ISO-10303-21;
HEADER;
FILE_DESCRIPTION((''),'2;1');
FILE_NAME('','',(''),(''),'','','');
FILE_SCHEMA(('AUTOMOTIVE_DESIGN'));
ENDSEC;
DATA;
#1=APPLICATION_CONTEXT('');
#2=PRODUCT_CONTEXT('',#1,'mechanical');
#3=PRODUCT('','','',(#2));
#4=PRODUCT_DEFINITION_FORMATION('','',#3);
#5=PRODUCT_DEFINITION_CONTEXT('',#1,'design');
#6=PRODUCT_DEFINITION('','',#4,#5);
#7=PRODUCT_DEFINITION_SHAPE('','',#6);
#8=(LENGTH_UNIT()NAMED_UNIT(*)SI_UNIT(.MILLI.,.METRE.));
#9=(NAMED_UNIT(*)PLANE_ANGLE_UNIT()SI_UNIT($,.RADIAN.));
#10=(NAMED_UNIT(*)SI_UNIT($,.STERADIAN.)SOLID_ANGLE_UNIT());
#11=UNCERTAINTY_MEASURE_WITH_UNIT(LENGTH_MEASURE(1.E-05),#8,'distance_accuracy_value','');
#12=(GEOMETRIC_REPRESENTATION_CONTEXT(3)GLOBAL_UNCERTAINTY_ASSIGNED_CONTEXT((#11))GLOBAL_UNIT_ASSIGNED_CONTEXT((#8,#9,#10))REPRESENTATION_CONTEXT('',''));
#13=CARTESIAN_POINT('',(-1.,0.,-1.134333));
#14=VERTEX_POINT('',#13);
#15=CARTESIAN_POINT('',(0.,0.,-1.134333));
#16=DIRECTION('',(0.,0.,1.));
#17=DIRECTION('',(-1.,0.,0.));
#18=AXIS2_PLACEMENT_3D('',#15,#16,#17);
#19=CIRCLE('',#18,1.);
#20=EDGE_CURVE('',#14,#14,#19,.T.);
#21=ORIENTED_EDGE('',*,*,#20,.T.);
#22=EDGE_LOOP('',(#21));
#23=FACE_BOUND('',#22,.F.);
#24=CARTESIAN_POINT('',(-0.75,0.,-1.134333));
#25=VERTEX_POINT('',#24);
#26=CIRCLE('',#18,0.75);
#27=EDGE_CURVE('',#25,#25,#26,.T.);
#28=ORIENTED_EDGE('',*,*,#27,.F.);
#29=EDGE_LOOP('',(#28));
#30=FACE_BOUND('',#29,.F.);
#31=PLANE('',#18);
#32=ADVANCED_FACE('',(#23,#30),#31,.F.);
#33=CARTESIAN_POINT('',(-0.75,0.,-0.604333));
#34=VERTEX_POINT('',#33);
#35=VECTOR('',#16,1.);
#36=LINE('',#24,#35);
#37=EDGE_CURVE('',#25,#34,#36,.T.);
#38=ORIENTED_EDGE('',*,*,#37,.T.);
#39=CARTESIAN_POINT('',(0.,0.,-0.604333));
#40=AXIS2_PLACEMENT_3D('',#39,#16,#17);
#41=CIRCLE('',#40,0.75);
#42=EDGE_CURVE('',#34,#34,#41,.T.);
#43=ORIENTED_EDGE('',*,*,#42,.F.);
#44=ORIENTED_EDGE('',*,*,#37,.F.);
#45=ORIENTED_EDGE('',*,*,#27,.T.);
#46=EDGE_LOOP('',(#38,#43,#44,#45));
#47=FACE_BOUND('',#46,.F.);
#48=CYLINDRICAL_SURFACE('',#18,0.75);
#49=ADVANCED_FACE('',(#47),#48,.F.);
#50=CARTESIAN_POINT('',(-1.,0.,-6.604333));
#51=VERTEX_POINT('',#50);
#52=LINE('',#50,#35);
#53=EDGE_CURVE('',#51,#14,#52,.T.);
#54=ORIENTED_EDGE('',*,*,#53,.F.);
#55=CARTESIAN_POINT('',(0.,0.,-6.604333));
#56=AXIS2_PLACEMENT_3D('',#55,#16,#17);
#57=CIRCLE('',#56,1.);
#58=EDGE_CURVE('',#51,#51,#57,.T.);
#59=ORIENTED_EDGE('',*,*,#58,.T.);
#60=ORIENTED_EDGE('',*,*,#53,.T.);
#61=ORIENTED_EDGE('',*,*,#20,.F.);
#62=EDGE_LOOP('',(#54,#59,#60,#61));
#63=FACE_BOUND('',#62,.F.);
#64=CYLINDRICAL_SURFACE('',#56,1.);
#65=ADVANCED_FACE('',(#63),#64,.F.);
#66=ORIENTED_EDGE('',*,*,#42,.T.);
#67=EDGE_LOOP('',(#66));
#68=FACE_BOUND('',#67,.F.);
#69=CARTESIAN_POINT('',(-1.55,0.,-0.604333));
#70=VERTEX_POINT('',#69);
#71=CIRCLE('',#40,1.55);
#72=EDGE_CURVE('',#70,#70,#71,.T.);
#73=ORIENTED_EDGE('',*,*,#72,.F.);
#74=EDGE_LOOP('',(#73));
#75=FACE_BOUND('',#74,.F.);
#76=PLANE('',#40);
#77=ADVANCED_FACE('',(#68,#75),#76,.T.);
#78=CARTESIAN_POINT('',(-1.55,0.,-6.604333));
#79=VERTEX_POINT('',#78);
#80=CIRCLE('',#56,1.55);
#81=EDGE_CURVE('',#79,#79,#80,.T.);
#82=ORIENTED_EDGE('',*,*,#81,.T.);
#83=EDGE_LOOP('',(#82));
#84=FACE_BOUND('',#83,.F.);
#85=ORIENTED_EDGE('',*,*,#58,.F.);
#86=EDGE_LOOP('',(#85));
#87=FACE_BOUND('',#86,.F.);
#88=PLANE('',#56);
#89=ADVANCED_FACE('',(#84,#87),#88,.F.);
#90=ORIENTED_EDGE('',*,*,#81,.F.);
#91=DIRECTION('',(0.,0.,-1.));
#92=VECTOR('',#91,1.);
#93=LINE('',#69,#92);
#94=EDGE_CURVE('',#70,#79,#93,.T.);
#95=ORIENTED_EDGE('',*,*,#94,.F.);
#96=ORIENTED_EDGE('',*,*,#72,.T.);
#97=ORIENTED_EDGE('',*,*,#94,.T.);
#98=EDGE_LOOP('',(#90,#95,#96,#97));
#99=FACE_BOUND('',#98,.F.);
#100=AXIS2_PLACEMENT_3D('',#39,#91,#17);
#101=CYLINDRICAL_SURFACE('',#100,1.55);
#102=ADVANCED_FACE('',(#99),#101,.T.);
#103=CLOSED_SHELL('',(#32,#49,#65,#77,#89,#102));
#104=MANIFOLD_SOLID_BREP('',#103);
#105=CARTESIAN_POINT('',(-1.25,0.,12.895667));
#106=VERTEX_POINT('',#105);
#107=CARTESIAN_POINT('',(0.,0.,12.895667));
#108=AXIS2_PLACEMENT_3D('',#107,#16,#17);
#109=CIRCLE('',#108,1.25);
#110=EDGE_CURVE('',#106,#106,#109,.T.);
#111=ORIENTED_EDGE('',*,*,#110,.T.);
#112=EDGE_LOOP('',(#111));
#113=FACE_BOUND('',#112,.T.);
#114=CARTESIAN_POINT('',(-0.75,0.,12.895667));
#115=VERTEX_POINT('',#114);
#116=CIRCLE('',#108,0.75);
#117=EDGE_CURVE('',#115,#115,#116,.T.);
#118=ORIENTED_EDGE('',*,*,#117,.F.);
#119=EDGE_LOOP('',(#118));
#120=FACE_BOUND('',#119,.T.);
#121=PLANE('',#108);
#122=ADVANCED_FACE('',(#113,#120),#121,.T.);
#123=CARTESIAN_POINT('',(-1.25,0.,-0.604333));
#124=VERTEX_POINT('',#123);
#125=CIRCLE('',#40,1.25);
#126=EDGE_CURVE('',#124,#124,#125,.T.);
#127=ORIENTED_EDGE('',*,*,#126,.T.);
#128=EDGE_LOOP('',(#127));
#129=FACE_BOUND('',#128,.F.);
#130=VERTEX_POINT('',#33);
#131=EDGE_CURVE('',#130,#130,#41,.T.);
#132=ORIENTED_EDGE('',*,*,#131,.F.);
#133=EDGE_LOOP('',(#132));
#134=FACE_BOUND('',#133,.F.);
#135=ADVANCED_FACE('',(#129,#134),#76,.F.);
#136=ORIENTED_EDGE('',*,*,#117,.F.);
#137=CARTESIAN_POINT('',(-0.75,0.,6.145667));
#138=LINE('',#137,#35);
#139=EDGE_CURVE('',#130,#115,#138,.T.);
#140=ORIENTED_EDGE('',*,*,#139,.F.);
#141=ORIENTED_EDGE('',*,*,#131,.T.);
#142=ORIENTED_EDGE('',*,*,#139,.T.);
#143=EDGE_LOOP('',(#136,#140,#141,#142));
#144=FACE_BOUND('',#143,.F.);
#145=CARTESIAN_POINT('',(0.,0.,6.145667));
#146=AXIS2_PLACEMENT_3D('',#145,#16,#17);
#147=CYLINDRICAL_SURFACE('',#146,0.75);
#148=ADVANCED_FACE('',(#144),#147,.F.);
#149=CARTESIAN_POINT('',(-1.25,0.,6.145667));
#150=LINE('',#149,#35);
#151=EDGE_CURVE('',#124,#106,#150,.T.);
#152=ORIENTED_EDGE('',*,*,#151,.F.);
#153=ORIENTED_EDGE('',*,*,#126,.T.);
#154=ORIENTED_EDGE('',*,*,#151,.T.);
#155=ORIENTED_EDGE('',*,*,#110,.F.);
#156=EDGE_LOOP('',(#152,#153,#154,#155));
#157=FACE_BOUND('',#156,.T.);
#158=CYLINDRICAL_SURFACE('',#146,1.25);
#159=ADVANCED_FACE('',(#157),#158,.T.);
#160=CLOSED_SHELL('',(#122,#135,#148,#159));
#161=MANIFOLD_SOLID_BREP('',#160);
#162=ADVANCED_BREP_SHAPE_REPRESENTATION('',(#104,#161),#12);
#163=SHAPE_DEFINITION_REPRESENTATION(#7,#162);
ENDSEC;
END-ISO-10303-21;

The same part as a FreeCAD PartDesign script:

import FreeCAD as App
import Part
import Sketcher

doc = App.newDocument("Part")
body = doc.addObject("PartDesign::Body", "Body")

sketch1 = body.newObject("Sketcher::SketchObject", "Sketch")
sketch1.AttachmentSupport = (doc.getObject("XZ_Plane"), [""])
sketch1.MapMode = "FlatFace"
sketch1.addGeometry([
    Part.LineSegment(App.Vector(-1.55, -6.6, 0), App.Vector(-1, -6.6, 0)),
    Part.LineSegment(App.Vector(-1, -6.6, 0), App.Vector(-1, -1.13, 0)),
    Part.LineSegment(App.Vector(-1, -1.13, 0), App.Vector(-0.75, -1.13, 0)),
    Part.LineSegment(App.Vector(-0.75, -1.13, 0), App.Vector(-0.75, -0.6, 0)),
    Part.LineSegment(App.Vector(-0.75, -0.6, 0), App.Vector(-1.55, -0.6, 0)),
    Part.LineSegment(App.Vector(-1.55, -0.6, 0), App.Vector(-1.55, -6.6, 0)),
], False)
sketch1.addConstraint([
    Sketcher.Constraint("Coincident", 0, 2, 1, 1),
    Sketcher.Constraint("Coincident", 1, 2, 2, 1),
    Sketcher.Constraint("Coincident", 2, 2, 3, 1),
    Sketcher.Constraint("Coincident", 3, 2, 4, 1),
    Sketcher.Constraint("Coincident", 4, 2, 5, 1),
    Sketcher.Constraint("Coincident", 5, 2, 0, 1),
    Sketcher.Constraint("Horizontal", 0),
    Sketcher.Constraint("Vertical", 1),
    Sketcher.Constraint("Horizontal", 2),
    Sketcher.Constraint("Vertical", 3),
    Sketcher.Constraint("Horizontal", 4),
    Sketcher.Constraint("Vertical", 5),
    Sketcher.Constraint("DistanceY", 5, 2, 5, 1, 6.0),
    Sketcher.Constraint("DistanceX", 4, 2, 4, 1, 0.8),
    Sketcher.Constraint("DistanceX", 0, 2, -1, 1, 1.0),
    Sketcher.Constraint("DistanceX", 0, 1, 0, 2, 0.55),
    Sketcher.Constraint("DistanceY", 1, 1, 1, 2, 5.47),
    Sketcher.Constraint("DistanceY", 0, 2, -1, 1, 6.604333),
])
revolution = body.newObject("PartDesign::Revolution", "Revolution")
revolution.Profile = sketch1
revolution.ReferenceAxis = (sketch1, ["V_Axis"])
revolution.Angle = 360
body2 = doc.addObject("PartDesign::Body", "Body001")

sketch2 = body2.newObject("Sketcher::SketchObject", "Sketch001")
sketch2.AttachmentSupport = (doc.getObject("XZ_Plane001"), [""])
sketch2.MapMode = "FlatFace"
sketch2.addGeometry([
    Part.LineSegment(App.Vector(-1.2, 12.9, 0), App.Vector(-1.2, -0.6, 0)),
    Part.LineSegment(App.Vector(-1.2, -0.6, 0), App.Vector(-0.8, -0.6, 0)),
    Part.LineSegment(App.Vector(-0.8, -0.6, 0), App.Vector(-0.8, 12.9, 0)),
    Part.LineSegment(App.Vector(-0.8, 12.9, 0), App.Vector(-1.2, 12.9, 0)),
], False)
sketch2.addConstraint([
    Sketcher.Constraint("Coincident", 0, 2, 1, 1),
    Sketcher.Constraint("Coincident", 1, 2, 2, 1),
    Sketcher.Constraint("Coincident", 2, 2, 3, 1),
    Sketcher.Constraint("Coincident", 3, 2, 0, 1),
    Sketcher.Constraint("Vertical", 0),
    Sketcher.Constraint("Horizontal", 1),
    Sketcher.Constraint("Vertical", 2),
    Sketcher.Constraint("Horizontal", 3),
    Sketcher.Constraint("DistanceX", 1, 1, 1, 2, 0.5),
    Sketcher.Constraint("DistanceY", 0, 2, 0, 1, 13.5),
    Sketcher.Constraint("DistanceX", 0, 2, -1, 1, 1.25),
    Sketcher.Constraint("DistanceY", 0, 2, -1, 1, 0.604333),
])
revolution2 = body2.newObject("PartDesign::Revolution", "Revolution001")
revolution2.Profile = sketch2
revolution2.ReferenceAxis = (sketch2, ["V_Axis"])
revolution2.Angle = 360

doc.recompute()
